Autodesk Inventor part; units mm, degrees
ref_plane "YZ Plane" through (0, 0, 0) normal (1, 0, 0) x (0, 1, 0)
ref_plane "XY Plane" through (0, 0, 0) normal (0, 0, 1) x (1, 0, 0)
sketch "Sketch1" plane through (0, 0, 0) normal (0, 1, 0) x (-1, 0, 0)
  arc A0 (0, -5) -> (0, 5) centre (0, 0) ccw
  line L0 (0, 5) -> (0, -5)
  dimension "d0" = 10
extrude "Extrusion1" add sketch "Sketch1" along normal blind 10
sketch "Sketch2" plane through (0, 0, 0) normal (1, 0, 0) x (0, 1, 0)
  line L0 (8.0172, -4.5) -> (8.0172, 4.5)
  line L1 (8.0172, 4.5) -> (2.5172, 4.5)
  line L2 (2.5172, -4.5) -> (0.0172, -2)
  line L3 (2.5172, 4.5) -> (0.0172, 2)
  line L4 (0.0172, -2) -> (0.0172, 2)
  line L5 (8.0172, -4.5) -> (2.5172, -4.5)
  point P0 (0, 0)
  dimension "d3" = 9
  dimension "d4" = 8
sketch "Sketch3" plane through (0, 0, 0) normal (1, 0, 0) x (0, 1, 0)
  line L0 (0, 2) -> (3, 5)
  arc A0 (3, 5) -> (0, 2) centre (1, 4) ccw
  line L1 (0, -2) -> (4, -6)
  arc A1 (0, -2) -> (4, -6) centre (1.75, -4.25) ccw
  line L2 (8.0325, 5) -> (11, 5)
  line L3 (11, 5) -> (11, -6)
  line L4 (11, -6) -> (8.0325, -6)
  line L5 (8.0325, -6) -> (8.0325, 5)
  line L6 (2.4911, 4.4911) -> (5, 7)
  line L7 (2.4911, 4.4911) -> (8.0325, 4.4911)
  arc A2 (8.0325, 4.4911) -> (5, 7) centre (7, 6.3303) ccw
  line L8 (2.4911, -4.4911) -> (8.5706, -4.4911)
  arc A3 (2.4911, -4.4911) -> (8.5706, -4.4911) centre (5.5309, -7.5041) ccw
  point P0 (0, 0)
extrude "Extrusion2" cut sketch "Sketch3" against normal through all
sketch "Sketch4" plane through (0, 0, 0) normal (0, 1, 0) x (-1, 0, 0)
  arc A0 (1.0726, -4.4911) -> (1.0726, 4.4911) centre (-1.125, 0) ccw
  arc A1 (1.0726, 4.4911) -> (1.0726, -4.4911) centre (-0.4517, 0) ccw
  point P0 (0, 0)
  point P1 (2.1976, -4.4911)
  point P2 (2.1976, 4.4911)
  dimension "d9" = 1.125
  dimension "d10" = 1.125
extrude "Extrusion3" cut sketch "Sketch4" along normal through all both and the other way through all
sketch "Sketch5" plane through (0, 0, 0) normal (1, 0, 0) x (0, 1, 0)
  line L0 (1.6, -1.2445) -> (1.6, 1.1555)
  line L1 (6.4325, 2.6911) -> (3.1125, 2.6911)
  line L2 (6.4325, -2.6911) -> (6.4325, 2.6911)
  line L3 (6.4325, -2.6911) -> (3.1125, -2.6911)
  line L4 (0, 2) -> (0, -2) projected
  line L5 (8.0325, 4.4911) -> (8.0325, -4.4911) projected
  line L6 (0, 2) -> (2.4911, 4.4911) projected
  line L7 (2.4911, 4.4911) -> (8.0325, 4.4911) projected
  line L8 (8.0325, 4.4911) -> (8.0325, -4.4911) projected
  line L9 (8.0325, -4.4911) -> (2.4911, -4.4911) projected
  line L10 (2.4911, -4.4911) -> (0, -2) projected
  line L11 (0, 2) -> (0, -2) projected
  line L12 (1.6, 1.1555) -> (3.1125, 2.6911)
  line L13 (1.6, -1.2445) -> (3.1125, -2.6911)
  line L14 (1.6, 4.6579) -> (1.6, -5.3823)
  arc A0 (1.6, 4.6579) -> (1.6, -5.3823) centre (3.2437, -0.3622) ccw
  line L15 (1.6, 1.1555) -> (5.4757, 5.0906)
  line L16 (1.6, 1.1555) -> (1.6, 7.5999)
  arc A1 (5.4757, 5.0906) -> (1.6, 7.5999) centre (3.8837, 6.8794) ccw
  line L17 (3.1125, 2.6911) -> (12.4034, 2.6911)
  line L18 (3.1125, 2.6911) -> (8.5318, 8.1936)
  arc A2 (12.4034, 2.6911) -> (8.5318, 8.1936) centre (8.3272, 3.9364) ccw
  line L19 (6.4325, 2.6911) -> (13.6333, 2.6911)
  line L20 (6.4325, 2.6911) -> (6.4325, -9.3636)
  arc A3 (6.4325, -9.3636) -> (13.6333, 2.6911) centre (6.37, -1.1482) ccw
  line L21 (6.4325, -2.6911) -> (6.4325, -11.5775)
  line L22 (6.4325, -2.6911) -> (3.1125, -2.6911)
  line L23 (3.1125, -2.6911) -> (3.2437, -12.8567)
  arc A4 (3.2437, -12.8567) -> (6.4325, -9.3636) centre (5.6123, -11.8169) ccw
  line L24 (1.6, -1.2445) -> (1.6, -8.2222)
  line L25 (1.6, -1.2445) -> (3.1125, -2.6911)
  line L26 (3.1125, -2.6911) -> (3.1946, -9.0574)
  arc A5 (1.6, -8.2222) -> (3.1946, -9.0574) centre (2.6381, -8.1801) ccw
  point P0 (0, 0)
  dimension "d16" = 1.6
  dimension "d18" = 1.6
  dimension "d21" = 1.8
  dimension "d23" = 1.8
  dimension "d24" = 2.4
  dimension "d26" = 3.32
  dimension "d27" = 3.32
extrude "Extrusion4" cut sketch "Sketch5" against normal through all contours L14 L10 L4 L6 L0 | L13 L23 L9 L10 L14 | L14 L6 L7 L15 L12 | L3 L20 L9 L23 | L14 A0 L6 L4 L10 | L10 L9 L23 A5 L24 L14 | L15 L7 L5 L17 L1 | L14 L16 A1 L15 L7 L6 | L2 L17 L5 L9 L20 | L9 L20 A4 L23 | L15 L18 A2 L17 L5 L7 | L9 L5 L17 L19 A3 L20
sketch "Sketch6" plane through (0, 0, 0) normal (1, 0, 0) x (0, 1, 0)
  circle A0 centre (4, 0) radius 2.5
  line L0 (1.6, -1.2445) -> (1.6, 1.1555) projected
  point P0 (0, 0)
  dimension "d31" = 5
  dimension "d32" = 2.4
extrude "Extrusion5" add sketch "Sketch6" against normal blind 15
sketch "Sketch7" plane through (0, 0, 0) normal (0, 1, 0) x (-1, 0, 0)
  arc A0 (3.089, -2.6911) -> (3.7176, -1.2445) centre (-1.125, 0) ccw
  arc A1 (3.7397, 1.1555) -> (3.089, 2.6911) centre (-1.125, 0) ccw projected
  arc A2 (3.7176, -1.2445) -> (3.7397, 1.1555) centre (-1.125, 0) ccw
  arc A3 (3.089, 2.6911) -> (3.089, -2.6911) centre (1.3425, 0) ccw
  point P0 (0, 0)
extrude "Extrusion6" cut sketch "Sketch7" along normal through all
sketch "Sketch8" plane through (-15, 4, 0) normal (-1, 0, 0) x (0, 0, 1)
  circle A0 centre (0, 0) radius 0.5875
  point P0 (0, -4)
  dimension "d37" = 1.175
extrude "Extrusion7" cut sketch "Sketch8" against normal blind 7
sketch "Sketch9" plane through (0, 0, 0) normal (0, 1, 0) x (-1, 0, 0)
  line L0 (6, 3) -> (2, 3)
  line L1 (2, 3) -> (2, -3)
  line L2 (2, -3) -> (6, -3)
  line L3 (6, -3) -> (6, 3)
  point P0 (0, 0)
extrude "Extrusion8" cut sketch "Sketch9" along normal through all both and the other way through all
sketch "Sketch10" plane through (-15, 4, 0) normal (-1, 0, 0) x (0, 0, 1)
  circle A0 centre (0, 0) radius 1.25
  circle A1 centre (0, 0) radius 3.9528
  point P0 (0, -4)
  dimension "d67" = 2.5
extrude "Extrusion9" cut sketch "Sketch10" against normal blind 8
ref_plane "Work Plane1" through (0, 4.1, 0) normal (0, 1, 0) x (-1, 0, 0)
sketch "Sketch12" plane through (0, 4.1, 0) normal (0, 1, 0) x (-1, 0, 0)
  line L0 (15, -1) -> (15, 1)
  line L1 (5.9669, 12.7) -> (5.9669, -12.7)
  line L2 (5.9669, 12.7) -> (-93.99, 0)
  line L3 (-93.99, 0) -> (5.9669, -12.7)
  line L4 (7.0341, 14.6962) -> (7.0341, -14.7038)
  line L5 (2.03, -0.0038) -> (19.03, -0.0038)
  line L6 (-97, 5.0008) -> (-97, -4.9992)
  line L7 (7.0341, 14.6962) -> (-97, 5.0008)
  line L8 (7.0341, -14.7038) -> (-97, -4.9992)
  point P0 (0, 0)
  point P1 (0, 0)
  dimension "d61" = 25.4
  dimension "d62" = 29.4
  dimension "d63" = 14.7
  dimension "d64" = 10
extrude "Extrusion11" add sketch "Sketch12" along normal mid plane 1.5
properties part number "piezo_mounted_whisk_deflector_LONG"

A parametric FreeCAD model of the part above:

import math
import FreeCAD as App
import Part
import Sketcher
Q = App.Units.Quantity

doc = App.newDocument("Part")
params = doc.addObject("Spreadsheet::Sheet", "Params")
for row, (alias, value) in enumerate([
    ("sketch1_radius", "5 mm"),
    ("pad1_length", "10 mm"),
    ("sketch2_height", "11 mm"),
    ("sketch2_radius", "4.28 mm"),
    ("sketch3_radius", "5 mm"),
    ("sketch4_height", "2.4 mm"),
    ("sketch4_width", "3.32 mm"),
    ("sketch4_width2", "1.23 mm"),
    ("sketch4_height2", "2.84 mm"),
    ("sketch4_height3", "5.02 mm"),
    ("sketch5_diameter", "5 mm"),
    ("pad2_length", "15 mm"),
    ("pocket5_length", "7 mm"),
    ("sketch8_width", "4 mm"),
    ("sketch8_height", "6 mm"),
    ("sketch9_diameter", "2.5 mm"),
    ("pocket7_length", "8 mm"),
    ("sketch10_height", "10 mm"),
    ("sketch10_height2", "14.7 mm"),
    ("pad3_length", "1.5 mm"),
], start=1):
    params.set(f"A{row}", alias)
    params.set(f"B{row}", "=" + value)
    params.setAlias(f"B{row}", alias)

body = doc.addObject("PartDesign::Body", "Body")

# Sketch on XZ plane
sketch1 = doc.addObject("Sketcher::SketchObject", "Sketch")
body.addObject(sketch1)
sketch1.AttachmentSupport = (doc.XZ_Plane, [""])
sketch1.MapMode = "FlatFace"
sketch1.addGeometry([
    Part.LineSegment(App.Vector(0, 5, 0), App.Vector(0, -5, 0)),
    Part.ArcOfCircle(Part.Circle(App.Vector(0, 0, 0), App.Vector(0, 0, 1), 5), math.radians(90), math.radians(270)),
], False)
sketch1.addConstraint([
    Sketcher.Constraint("Coincident", 0, 1, 1, 1),
    Sketcher.Constraint("Coincident", 1, 2, 0, 2),
    Sketcher.Constraint("Vertical", 0),
    Sketcher.Constraint("Coincident", 1, 3, -1, 1),
    Sketcher.Constraint("PointOnObject", 0, 1, -2),
    Sketcher.Constraint("Radius", 1, Q("5 mm")),
])
sketch1.setExpression("Constraints[5]", "Params.sketch1_radius")
pad1 = doc.addObject("PartDesign::Pad", "Pad")
body.addObject(pad1)
pad1.Profile = sketch1
pad1.setExpression("Length", "Params.pad1_length")
pad1.Reversed = True

# Sketch on YZ plane
sketch2 = doc.addObject("Sketcher::SketchObject", "Sketch001")
body.addObject(sketch2)
sketch2.AttachmentSupport = (doc.YZ_Plane, [""])
sketch2.MapMode = "FlatFace"
sketch2.addGeometry([
    Part.ArcOfCircle(Part.Circle(App.Vector(1, 4, 0), App.Vector(0, 0, 1), 2.236068), math.radians(26.565051), math.radians(243.434949)),  # 0
    Part.LineSegment(App.Vector(0, 2, 0), App.Vector(2.4911, 4.4911, 0)),  # 1
    Part.LineSegment(App.Vector(2.4911, 4.4911, 0), App.Vector(8.0325, 4.4911, 0)),  # 2
    Part.LineSegment(App.Vector(8.0325, 4.4911, 0), App.Vector(8.0325, -4.4911, 0)),  # 3
    Part.LineSegment(App.Vector(8.0325, -4.4911, 0), App.Vector(2.4911, -4.4911, 0)),  # 4
    Part.LineSegment(App.Vector(2.4911, -4.4911, 0), App.Vector(0, -2, 0)),  # 5
    Part.ArcOfCircle(Part.Circle(App.Vector(1.75, -4.25, 0), App.Vector(0, 0, 1), 2.850439), math.radians(127.874984), math.radians(260.385326)),  # 6
    Part.ArcOfCircle(Part.Circle(App.Vector(5.5309, -7.5041, 0), App.Vector(0, 0, 1), 4.280018), math.radians(174.04961), math.radians(380.5748)),  # 7
    Part.LineSegment(App.Vector(9.537843, -6, 0), App.Vector(11, -6, 0)),  # 8
    Part.LineSegment(App.Vector(11, -6, 0), App.Vector(11, 5, 0)),  # 9
    Part.LineSegment(App.Vector(11, 5, 0), App.Vector(8.636781, 5, 0)),  # 10
    Part.ArcOfCircle(Part.Circle(App.Vector(7, 6.3303, 0), App.Vector(0, 0, 1), 2.109197), math.radians(-39.10262), math.radians(161.486878)),  # 11
    Part.LineSegment(App.Vector(5, 7, 0), App.Vector(3, 5, 0)),  # 12
], False)
sketch2.addConstraint([
    Sketcher.Constraint("Coincident", 0, 2, 1, 1),
    Sketcher.Constraint("Coincident", 1, 2, 2, 1),
    Sketcher.Constraint("Coincident", 2, 2, 3, 1),
    Sketcher.Constraint("Coincident", 3, 2, 4, 1),
    Sketcher.Constraint("Coincident", 4, 2, 5, 1),
    Sketcher.Constraint("Coincident", 5, 2, 6, 1),
    Sketcher.Constraint("Coincident", 6, 2, 7, 1),
    Sketcher.Constraint("Coincident", 7, 2, 8, 1),
    Sketcher.Constraint("Coincident", 8, 2, 9, 1),
    Sketcher.Constraint("Coincident", 9, 2, 10, 1),
    Sketcher.Constraint("Coincident", 10, 2, 11, 1),
    Sketcher.Constraint("Coincident", 11, 2, 12, 1),
    Sketcher.Constraint("Coincident", 12, 2, 0, 1),
    Sketcher.Constraint("Horizontal", 2),
    Sketcher.Constraint("Vertical", 3),
    Sketcher.Constraint("Horizontal", 4),
    Sketcher.Constraint("Horizontal", 8),
    Sketcher.Constraint("Vertical", 9),
    Sketcher.Constraint("Horizontal", 10),
    Sketcher.Constraint("Symmetric", 0, 2, 5, 2, -1, 1),
    Sketcher.Constraint("Symmetric", 1, 2, 4, 2, -1),
    Sketcher.Constraint("PointOnObject", 0, 2, -2),
    Sketcher.Constraint("Perpendicular", 1, 5),
    Sketcher.Constraint("Perpendicular", 5, 12),
    Sketcher.Constraint("Horizontal", 10, 2, 12, 2),
    Sketcher.Constraint("DistanceY", 9, 1, 9, 2, Q("11 mm")),
    Sketcher.Constraint("Radius", 7, Q("4.28 mm")),
    Sketcher.Constraint("DistanceX", -1, 1, 0, 3, Q("1 mm")),
    Sketcher.Constraint("DistanceY", -1, 1, 0, 3, Q("4 mm")),
    Sketcher.Constraint("DistanceX", -1, 1, 11, 3, Q("7 mm")),
    Sketcher.Constraint("DistanceY", -1, 1, 0, 2, Q("2 mm")),
    Sketcher.Constraint("DistanceY", 7, 2, -1, 1, Q("6 mm")),
    Sketcher.Constraint("DistanceX", -1, 1, 8, 2, Q("11 mm")),
    Sketcher.Constraint("DistanceX", -1, 1, 11, 2, Q("5 mm")),
    Sketcher.Constraint("Radius", 6, Q("2.8504 mm")),
    Sketcher.Constraint("Radius", 11, Q("2.1092 mm")),
    Sketcher.Constraint("DistanceX", -1, 1, 6, 3, Q("1.75 mm")),
    Sketcher.Constraint("Distance", 1, Q("3.523 mm")),
    Sketcher.Constraint("DistanceX", 2, 1, 2, 2, Q("5.5414 mm")),
    Sketcher.Constraint("DistanceX", 8, 1, 8, 2, Q("1.4622 mm")),
    Sketcher.Constraint("DistanceX", -1, 1, 7, 3, Q("5.531 mm")),
])
sketch2.setExpression("Constraints[25]", "Params.sketch2_height")
sketch2.setExpression("Constraints[26]", "Params.sketch2_radius")
pocket1 = doc.addObject("PartDesign::Pocket", "Pocket")
body.addObject(pocket1)
pocket1.Profile = sketch2
pocket1.Type = "ThroughAll"

# Sketch on XZ plane
sketch3 = doc.addObject("Sketcher::SketchObject", "Sketch002")
body.addObject(sketch3)
sketch3.AttachmentSupport = (doc.XZ_Plane, [""])
sketch3.MapMode = "FlatFace"
sketch3.addGeometry([
    Part.ArcOfCircle(Part.Circle(App.Vector(0.4517, 0, 0), App.Vector(0, 0, 1), 4.742728), math.radians(-108.747449), math.radians(108.747449)),
    Part.ArcOfCircle(Part.Circle(App.Vector(1.125, 0, 0), App.Vector(0, 0, 1), 4.999942), math.radians(116.073582), math.radians(243.926418)),
], False)
sketch3.addConstraint([
    Sketcher.Constraint("Coincident", 0, 1, 1, 2),
    Sketcher.Constraint("Coincident", 1, 1, 0, 2),
    Sketcher.Constraint("Symmetric", 0, 1, 1, 1, -1),
    Sketcher.Constraint("Radius", 1, Q("5 mm")),
    Sketcher.Constraint("DistanceX", -1, 1, 1, 3, Q("1.125 mm")),
    Sketcher.Constraint("Radius", 0, Q("4.7427 mm")),
    Sketcher.Constraint("DistanceY", 0, 1, -1, 1, Q("4.491 mm")),
])
sketch3.setExpression("Constraints[3]", "Params.sketch3_radius")
pocket2 = doc.addObject("PartDesign::Pocket", "Pocket001")
body.addObject(pocket2)
pocket2.Profile = sketch3
pocket2.Type = "ThroughAll"

# Sketch on YZ plane
sketch4 = doc.addObject("Sketcher::SketchObject", "Sketch003")
body.addObject(sketch4)
sketch4.AttachmentSupport = (doc.YZ_Plane, [""])
sketch4.MapMode = "FlatFace"
sketch4.addGeometry([
    Part.ArcOfCircle(Part.Circle(App.Vector(3.2437, -0.3622, 0), App.Vector(0, 0, 1), 5.282344), math.radians(108.129676), math.radians(251.870324)),  # 0
    Part.LineSegment(App.Vector(1.6, -5.3823, 0), App.Vector(1.6, -8.2222, 0)),  # 1
    Part.ArcOfCircle(Part.Circle(App.Vector(2.6381, -8.1801, 0), App.Vector(0, 0, 1), 1.038953), math.radians(-177.67765), math.radians(-57.611711)),  # 2
    Part.LineSegment(App.Vector(3.194665, -9.057399, 0), App.Vector(3.2437, -12.8567, 0)),  # 3
    Part.ArcOfCircle(Part.Circle(App.Vector(5.6123, -11.8169, 0), App.Vector(0, 0, 1), 2.586784), math.radians(-156.298838), math.radians(71.51392)),  # 4
    Part.ArcOfCircle(Part.Circle(App.Vector(6.37, -1.1482, 0), App.Vector(0, 0, 1), 8.215638), math.radians(-89.564121), math.radians(27.860435)),  # 5
    Part.LineSegment(App.Vector(13.6333, 2.6911, 0), App.Vector(12.4034, 2.6911, 0)),  # 6
    Part.ArcOfCircle(Part.Circle(App.Vector(8.3272, 3.9364, 0), App.Vector(0, 0, 1), 4.26218), math.radians(-16.988181), math.radians(87.248496)),  # 7
    Part.LineSegment(App.Vector(8.5318, 8.1936, 0), App.Vector(5.475709, 5.090591, 0)),  # 8
    Part.ArcOfCircle(Part.Circle(App.Vector(3.8837, 6.8794, 0), App.Vector(0, 0, 1), 2.394633), math.radians(-48.331489), math.radians(162.489682)),  # 9
    Part.LineSegment(App.Vector(1.6, 7.5999, 0), App.Vector(1.6, 4.6579, 0)),  # 10
    Part.LineSegment(App.Vector(1.6, -1.2445, 0), App.Vector(1.6, 1.1555, 0)),  # 11
    Part.LineSegment(App.Vector(1.6, 1.1555, 0), App.Vector(3.1125, 2.6911, 0)),  # 12
    Part.LineSegment(App.Vector(3.1125, 2.6911, 0), App.Vector(6.4325, 2.6911, 0)),  # 13
    Part.LineSegment(App.Vector(6.4325, 2.6911, 0), App.Vector(6.4325, -2.6911, 0)),  # 14
    Part.LineSegment(App.Vector(6.4325, -2.6911, 0), App.Vector(3.1125, -2.6911, 0)),  # 15
    Part.LineSegment(App.Vector(3.1125, -2.6911, 0), App.Vector(1.6, -1.2445, 0)),  # 16
], False)
sketch4.addConstraint([
    Sketcher.Constraint("Coincident", 0, 2, 1, 1),
    Sketcher.Constraint("Coincident", 1, 2, 2, 1),
    Sketcher.Constraint("Coincident", 2, 2, 3, 1),
    Sketcher.Constraint("Coincident", 3, 2, 4, 1),
    Sketcher.Constraint("Coincident", 4, 2, 5, 1),
    Sketcher.Constraint("Coincident", 5, 2, 6, 1),
    Sketcher.Constraint("Coincident", 6, 2, 7, 1),
    Sketcher.Constraint("Coincident", 7, 2, 8, 1),
    Sketcher.Constraint("Coincident", 8, 2, 9, 1),
    Sketcher.Constraint("Coincident", 9, 2, 10, 1),
    Sketcher.Constraint("Coincident", 10, 2, 0, 1),
    Sketcher.Constraint("Coincident", 11, 2, 12, 1),
    Sketcher.Constraint("Coincident", 12, 2, 13, 1),
    Sketcher.Constraint("Coincident", 13, 2, 14, 1),
    Sketcher.Constraint("Coincident", 14, 2, 15, 1),
    Sketcher.Constraint("Coincident", 15, 2, 16, 1),
    Sketcher.Constraint("Coincident", 16, 2, 11, 1),
    Sketcher.Constraint("Vertical", 1),
    Sketcher.Constraint("Horizontal", 6),
    Sketcher.Constraint("Vertical", 10),
    Sketcher.Constraint("Vertical", 11),
    Sketcher.Constraint("Horizontal", 13),
    Sketcher.Constraint("Vertical", 14),
    Sketcher.Constraint("Horizontal", 15),
    Sketcher.Constraint("Symmetric", 12, 2, 15, 2, -1),
    Sketcher.Constraint("Parallel", 8, 12),
    Sketcher.Constraint("Horizontal", 6, 2, 12, 2),
    Sketcher.Constraint("Vertical", 0, 3, 3, 2),
    Sketcher.Constraint("Vertical", 1, 2, 9, 2),
    Sketcher.Constraint("Vertical", 10, 2, 11, 2),
    Sketcher.Constraint("Vertical", 4, 2, 13, 2),
    Sketcher.Constraint("DistanceY", 11, 1, 11, 2, Q("2.4 mm")),
    Sketcher.Constraint("DistanceX", 13, 1, 13, 2, Q("3.32 mm")),
    Sketcher.Constraint("DistanceX", -1, 1, 0, 2, Q("1.6 mm")),
    Sketcher.Constraint("Radius", 2, Q("1.039 mm")),
    Sketcher.Constraint("DistanceX", 6, 2, 6, 1, Q("1.23 mm")),
    Sketcher.Constraint("DistanceY", 1, 2, 1, 1, Q("2.84 mm")),
    Sketcher.Constraint("DistanceY", -1, 1, 9, 2, Q("7.6 mm")),
    Sketcher.Constraint("Angle", 3, Q("-89.2606 deg")),
    Sketcher.Constraint("Radius", 0, Q("5.2823 mm")),
    Sketcher.Constraint("Radius", 4, Q("2.5868 mm")),
    Sketcher.Constraint("Radius", 5, Q("8.2156 mm")),
    Sketcher.Constraint("Radius", 7, Q("4.2622 mm")),
    Sketcher.Constraint("Radius", 9, Q("2.3946 mm")),
    Sketcher.Constraint("DistanceY", 12, 2, 8, 2, Q("2.3995 mm")),
    Sketcher.Constraint("DistanceY", 10, 2, 10, 1, Q("2.942 mm")),
    Sketcher.Constraint("DistanceY", 2, 3, -1, 1, Q("8.18 mm")),
    Sketcher.Constraint("DistanceX", -1, 1, 5, 3, Q("6.37 mm")),
    Sketcher.Constraint("DistanceX", 0, 3, 9, 3, Q("0.64 mm")),
    Sketcher.Constraint("DistanceY", 0, 2, 0, 3, Q("5.02 mm")),
    Sketcher.Constraint("Distance", 16, Q("2.093 mm")),
    Sketcher.Constraint("DistanceY", 14, 2, 14, 1, Q("5.3822 mm")),
    Sketcher.Constraint("DistanceY", 4, 3, -1, 1, Q("11.817 mm")),
    Sketcher.Constraint("DistanceY", 5, 3, 0, 3, Q("0.786 mm")),
    Sketcher.Constraint("DistanceX", 2, 3, 7, 3, Q("5.689 mm")),
    Sketcher.Constraint("DistanceX", 4, 3, 7, 3, Q("2.715 mm")),
])
sketch4.setExpression("Constraints[31]", "Params.sketch4_height")
sketch4.setExpression("Constraints[32]", "Params.sketch4_width")
sketch4.setExpression("Constraints[35]", "Params.sketch4_width2")
sketch4.setExpression("Constraints[36]", "Params.sketch4_height2")
sketch4.setExpression("Constraints[49]", "Params.sketch4_height3")
pocket3 = doc.addObject("PartDesign::Pocket", "Pocket002")
body.addObject(pocket3)
pocket3.Profile = sketch4
pocket3.Type = "ThroughAll"

# Sketch on YZ plane
sketch5 = doc.addObject("Sketcher::SketchObject", "Sketch004")
body.addObject(sketch5)
sketch5.AttachmentSupport = (doc.YZ_Plane, [""])
sketch5.MapMode = "FlatFace"
sketch5.addGeometry(Part.Circle(App.Vector(4, 0, 0), App.Vector(0, 0, 1), 2.5), False)
sketch5.addConstraint([
    Sketcher.Constraint("PointOnObject", 0, 3, -1),
    Sketcher.Constraint("Diameter", 0, Q("5 mm")),
    Sketcher.Constraint("DistanceX", -1, 1, 0, 3, Q("4 mm")),
])
sketch5.setExpression("Constraints[1]", "Params.sketch5_diameter")
pad2 = doc.addObject("PartDesign::Pad", "Pad001")
body.addObject(pad2)
pad2.Profile = sketch5
pad2.setExpression("Length", "Params.pad2_length")
pad2.Reversed = True

# Sketch on XZ plane
sketch6 = doc.addObject("Sketcher::SketchObject", "Sketch005")
body.addObject(sketch6)
sketch6.AttachmentSupport = (doc.XZ_Plane, [""])
sketch6.MapMode = "FlatFace"
sketch6.addGeometry([
    Part.ArcOfCircle(Part.Circle(App.Vector(-1.3425, 0, 0), App.Vector(0, 0, 1), 3.208159), math.radians(-122.983213), math.radians(122.983213)),
    Part.ArcOfCircle(Part.Circle(App.Vector(1.12408, -0.00049, 0), App.Vector(0, 0, 1), 4.998942), math.radians(-165.590252), math.radians(-147.436371)),
    Part.ArcOfCircle(Part.Circle(App.Vector(1.126592, 0.000209, 0), App.Vector(0, 0, 1), 5.001549), math.radians(166.64483), math.radians(194.410337)),
    Part.ArcOfCircle(Part.Circle(App.Vector(1.122716, 0.000749, 0), App.Vector(0, 0, 1), 4.997654), math.radians(147.430464), math.radians(166.640596)),
], False)
sketch6.addConstraint([
    Sketcher.Constraint("Coincident", 0, 1, 1, 2),
    Sketcher.Constraint("Tangent", 1, 1, 2, 2),
    Sketcher.Constraint("Tangent", 2, 1, 3, 2),
    Sketcher.Constraint("Coincident", 3, 1, 0, 2),
    Sketcher.Constraint("Symmetric", 0, 1, 3, 1, -1),
    Sketcher.Constraint("Radius", 1, Q("4.999 mm")),
    Sketcher.Constraint("Radius", 0, Q("3.2082 mm")),
    Sketcher.Constraint("Radius", 2, Q("5.0015 mm")),
    Sketcher.Constraint("Radius", 3, Q("4.9977 mm")),
    Sketcher.Constraint("DistanceY", 1, 1, 2, 1, Q("2.4 mm")),
    Sketcher.Constraint("DistanceX", -1, 1, 1, 3, Q("1.124 mm")),
    Sketcher.Constraint("DistanceX", 0, 1, -1, 1, Q("3.089 mm")),
    Sketcher.Constraint("DistanceX", 1, 1, 0, 3, Q("2.375 mm")),
])
pocket4 = doc.addObject("PartDesign::Pocket", "Pocket003")
body.addObject(pocket4)
pocket4.Profile = sketch6
pocket4.Type = "ThroughAll"

# Sketch on YZ plane
sketch7 = doc.addObject("Sketcher::SketchObject", "Sketch006")
body.addObject(sketch7)
sketch7.AttachmentSupport = (doc.YZ_Plane, [""])
sketch7.MapMode = "FlatFace"
sketch7.AttachmentOffset = App.Placement(App.Vector(0, 0, -15), App.Rotation())
sketch7.addGeometry(Part.Circle(App.Vector(4, 0, 0), App.Vector(0, 0, 1), 0.5875), False)
sketch7.addConstraint([
    Sketcher.Constraint("PointOnObject", 0, 3, -1),
    Sketcher.Constraint("Diameter", 0, Q("1.175 mm")),
    Sketcher.Constraint("DistanceX", -1, 1, 0, 3, Q("4 mm")),
])
pocket5 = doc.addObject("PartDesign::Pocket", "Pocket004")
body.addObject(pocket5)
pocket5.Profile = sketch7
pocket5.setExpression("Length", "Params.pocket5_length")
pocket5.Reversed = True

# Sketch on XZ plane
sketch8 = doc.addObject("Sketcher::SketchObject", "Sketch007")
body.addObject(sketch8)
sketch8.AttachmentSupport = (doc.XZ_Plane, [""])
sketch8.MapMode = "FlatFace"
sketch8.addGeometry([
    Part.LineSegment(App.Vector(-6, -3, 0), App.Vector(-6, 3, 0)),
    Part.LineSegment(App.Vector(-6, 3, 0), App.Vector(-2, 3, 0)),
    Part.LineSegment(App.Vector(-2, 3, 0), App.Vector(-2, -3, 0)),
    Part.LineSegment(App.Vector(-2, -3, 0), App.Vector(-6, -3, 0)),
], False)
sketch8.addConstraint([
    Sketcher.Constraint("Coincident", 0, 2, 1, 1),
    Sketcher.Constraint("Coincident", 1, 2, 2, 1),
    Sketcher.Constraint("Coincident", 2, 2, 3, 1),
    Sketcher.Constraint("Coincident", 3, 2, 0, 1),
    Sketcher.Constraint("Vertical", 0),
    Sketcher.Constraint("Horizontal", 1),
    Sketcher.Constraint("Vertical", 2),
    Sketcher.Constraint("Horizontal", 3),
    Sketcher.Constraint("DistanceX", 1, 1, 1, 2, Q("4 mm")),
    Sketcher.Constraint("DistanceY", 0, 1, 0, 2, Q("6 mm")),
    Sketcher.Constraint("DistanceX", 0, 2, -1, 1, Q("6 mm")),
    Sketcher.Constraint("DistanceY", -1, 1, 0, 2, Q("3 mm")),
])
sketch8.setExpression("Constraints[8]", "Params.sketch8_width")
sketch8.setExpression("Constraints[9]", "Params.sketch8_height")
pocket6 = doc.addObject("PartDesign::Pocket", "Pocket005")
body.addObject(pocket6)
pocket6.Profile = sketch8
pocket6.Type = "ThroughAll"

# Sketch on YZ plane
sketch9 = doc.addObject("Sketcher::SketchObject", "Sketch008")
body.addObject(sketch9)
sketch9.AttachmentSupport = (doc.YZ_Plane, [""])
sketch9.MapMode = "FlatFace"
sketch9.AttachmentOffset = App.Placement(App.Vector(0, 0, -15), App.Rotation())
sketch9.addGeometry([
    Part.Circle(App.Vector(4, 0, 0), App.Vector(0, 0, 1), 3.9528),
    Part.Circle(App.Vector(4, 0, 0), App.Vector(0, 0, 1), 1.25),
], False)
sketch9.addConstraint([
    Sketcher.Constraint("Coincident", 1, 3, 0, 3),
    Sketcher.Constraint("PointOnObject", 0, 3, -1),
    Sketcher.Constraint("Diameter", 1, Q("2.5 mm")),
    Sketcher.Constraint("DistanceX", -1, 1, 0, 3, Q("4 mm")),
    Sketcher.Constraint("Diameter", 0, Q("7.9056 mm")),
])
sketch9.setExpression("Constraints[2]", "Params.sketch9_diameter")
pocket7 = doc.addObject("PartDesign::Pocket", "Pocket006")
body.addObject(pocket7)
pocket7.Profile = sketch9
pocket7.setExpression("Length", "Params.pocket7_length")
pocket7.Reversed = True

# Sketch on XZ plane
sketch10 = doc.addObject("Sketcher::SketchObject", "Sketch009")
body.addObject(sketch10)
sketch10.AttachmentSupport = (doc.XZ_Plane, [""])
sketch10.MapMode = "FlatFace"
sketch10.AttachmentOffset = App.Placement(App.Vector(0, 0, -4.1), App.Rotation())
sketch10.addGeometry([
    Part.LineSegment(App.Vector(-7.0341, -14.7038, 0), App.Vector(-7.0341, -0.0038, 0)),  # 0
    Part.LineSegment(App.Vector(-7.0341, -0.0038, 0), App.Vector(-7.0341, 14.6962, 0)),  # 1
    Part.LineSegment(App.Vector(-7.0341, 14.6962, 0), App.Vector(97, 5.0008, 0)),  # 2
    Part.LineSegment(App.Vector(97, 5.0008, 0), App.Vector(97, -4.9992, 0)),  # 3
    Part.LineSegment(App.Vector(97, -4.9992, 0), App.Vector(-7.0341, -14.7038, 0)),  # 4
    Part.LineSegment(App.Vector(93.99, 0, 0), App.Vector(-5.9669, 12.7, 0)),  # 5
    Part.LineSegment(App.Vector(-5.9669, 12.7, 0), App.Vector(-5.9669, -0.0038, 0)),  # 6
    Part.LineSegment(App.Vector(-5.9669, -0.0038, 0), App.Vector(-5.9669, -12.7, 0)),  # 7
    Part.LineSegment(App.Vector(-5.9669, -12.7, 0), App.Vector(93.99, 0, 0)),  # 8
], False)
sketch10.addConstraint([
    Sketcher.Constraint("Coincident", 0, 2, 1, 1),
    Sketcher.Constraint("Coincident", 1, 2, 2, 1),
    Sketcher.Constraint("Coincident", 2, 2, 3, 1),
    Sketcher.Constraint("Coincident", 3, 2, 4, 1),
    Sketcher.Constraint("Coincident", 4, 2, 0, 1),
    Sketcher.Constraint("Coincident", 5, 2, 6, 1),
    Sketcher.Constraint("Coincident", 6, 2, 7, 1),
    Sketcher.Constraint("Coincident", 7, 2, 8, 1),
    Sketcher.Constraint("Coincident", 8, 2, 5, 1),
    Sketcher.Constraint("Vertical", 0),
    Sketcher.Constraint("Vertical", 1),
    Sketcher.Constraint("Vertical", 3),
    Sketcher.Constraint("Vertical", 6),
    Sketcher.Constraint("Vertical", 7),
    Sketcher.Constraint("PointOnObject", 8, 2, -1),
    Sketcher.Constraint("Horizontal", 0, 2, 6, 2),
    Sketcher.Constraint("Equal", 0, 1),
    Sketcher.Constraint("Equal", 5, 8),
    Sketcher.Constraint("DistanceY", 3, 2, 3, 1, Q("10 mm")),
    Sketcher.Constraint("DistanceY", 0, 1, 0, 2, Q("14.7 mm")),
    Sketcher.Constraint("DistanceY", 7, 2, 5, 2, Q("25.4 mm")),
    Sketcher.Constraint("DistanceX", -1, 1, 2, 2, Q("97 mm")),
    Sketcher.Constraint("Angle", 4, Q("-174.6707 deg")),
    Sketcher.Constraint("Angle", 5, Q("172.759 deg")),
    Sketcher.Constraint("DistanceX", -1, 1, 8, 2, Q("93.99 mm")),
    Sketcher.Constraint("Distance", 2, Q("104.485 mm")),
    Sketcher.Constraint("DistanceY", 6, 2, 6, 1, Q("12.7038 mm")),
])
sketch10.setExpression("Constraints[18]", "Params.sketch10_height")
sketch10.setExpression("Constraints[19]", "Params.sketch10_height2")
pad3 = doc.addObject("PartDesign::Pad", "Pad002")
body.addObject(pad3)
pad3.Profile = sketch10
pad3.setExpression("Length", "Params.pad3_length")
pad3.Midplane = True

doc.recompute()
